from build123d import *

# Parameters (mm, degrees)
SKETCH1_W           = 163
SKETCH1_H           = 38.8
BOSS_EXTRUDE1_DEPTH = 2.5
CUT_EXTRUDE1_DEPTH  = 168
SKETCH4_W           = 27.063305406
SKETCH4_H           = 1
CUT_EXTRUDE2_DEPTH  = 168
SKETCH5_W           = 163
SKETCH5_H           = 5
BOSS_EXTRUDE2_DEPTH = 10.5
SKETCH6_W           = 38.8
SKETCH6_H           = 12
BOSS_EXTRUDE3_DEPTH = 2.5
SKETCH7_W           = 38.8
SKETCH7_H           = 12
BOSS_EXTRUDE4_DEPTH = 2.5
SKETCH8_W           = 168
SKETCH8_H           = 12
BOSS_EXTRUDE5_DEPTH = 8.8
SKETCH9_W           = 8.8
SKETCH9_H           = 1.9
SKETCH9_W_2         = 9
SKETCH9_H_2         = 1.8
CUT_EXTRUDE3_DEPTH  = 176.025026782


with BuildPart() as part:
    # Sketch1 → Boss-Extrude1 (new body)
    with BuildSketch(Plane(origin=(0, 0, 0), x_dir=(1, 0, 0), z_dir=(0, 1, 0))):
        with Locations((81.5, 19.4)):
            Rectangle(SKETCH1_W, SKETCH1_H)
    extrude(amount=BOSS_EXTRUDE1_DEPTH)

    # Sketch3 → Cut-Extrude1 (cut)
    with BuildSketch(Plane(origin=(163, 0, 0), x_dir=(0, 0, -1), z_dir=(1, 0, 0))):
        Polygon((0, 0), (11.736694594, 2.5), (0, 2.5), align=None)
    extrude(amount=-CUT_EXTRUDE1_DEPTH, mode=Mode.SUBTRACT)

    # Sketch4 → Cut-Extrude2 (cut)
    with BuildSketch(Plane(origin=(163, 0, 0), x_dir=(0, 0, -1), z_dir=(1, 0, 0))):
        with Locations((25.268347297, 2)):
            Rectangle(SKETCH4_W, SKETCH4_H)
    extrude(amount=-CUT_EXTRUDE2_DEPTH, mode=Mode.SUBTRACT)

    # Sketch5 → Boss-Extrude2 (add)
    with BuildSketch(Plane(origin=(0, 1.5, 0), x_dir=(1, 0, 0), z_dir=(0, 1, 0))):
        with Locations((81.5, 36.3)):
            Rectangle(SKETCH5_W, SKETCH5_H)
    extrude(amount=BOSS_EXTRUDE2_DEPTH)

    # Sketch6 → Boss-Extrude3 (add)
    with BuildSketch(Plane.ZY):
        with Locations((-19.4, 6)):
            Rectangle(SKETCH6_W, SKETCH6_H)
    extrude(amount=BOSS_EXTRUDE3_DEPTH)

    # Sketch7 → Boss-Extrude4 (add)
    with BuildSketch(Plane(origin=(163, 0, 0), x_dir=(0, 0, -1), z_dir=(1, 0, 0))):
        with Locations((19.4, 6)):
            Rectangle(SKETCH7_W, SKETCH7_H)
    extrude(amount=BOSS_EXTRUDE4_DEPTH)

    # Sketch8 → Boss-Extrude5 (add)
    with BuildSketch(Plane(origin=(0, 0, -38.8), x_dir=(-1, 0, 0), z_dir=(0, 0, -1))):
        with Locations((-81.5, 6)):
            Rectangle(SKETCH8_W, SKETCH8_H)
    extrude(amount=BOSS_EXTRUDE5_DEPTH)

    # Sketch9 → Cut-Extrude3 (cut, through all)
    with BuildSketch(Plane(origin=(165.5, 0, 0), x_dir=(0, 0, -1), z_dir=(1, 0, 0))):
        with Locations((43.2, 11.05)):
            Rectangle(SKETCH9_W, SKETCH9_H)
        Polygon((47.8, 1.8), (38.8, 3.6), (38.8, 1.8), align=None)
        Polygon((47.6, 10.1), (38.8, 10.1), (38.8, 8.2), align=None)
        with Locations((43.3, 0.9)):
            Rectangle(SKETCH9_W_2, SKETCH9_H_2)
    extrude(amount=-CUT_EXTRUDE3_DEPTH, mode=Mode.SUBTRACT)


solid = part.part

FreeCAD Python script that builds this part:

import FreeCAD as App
import Part
import Sketcher
from FreeCAD import Vector
Q = App.Units.Quantity


def add_polygon(sketch, points):
    """Adds a closed chain of lines whose ends are joined by coincident constraints."""
    first, n = sketch.GeometryCount, len(points)
    for a, b in zip(points, points[1:] + points[:1]):
        sketch.addGeometry(Part.LineSegment(App.Vector(*a, 0), App.Vector(*b, 0)), False)
    for i in range(n):
        sketch.addConstraint(Sketcher.Constraint("Coincident", first + i, 2, first + (i + 1) % n, 1))

doc = App.newDocument("Part")
params = doc.addObject("Spreadsheet::Sheet", "Params")
for row, (alias, value) in enumerate([
    ("sketch1_width", "163 mm"),
    ("sketch1_height", "38.8 mm"),
    ("pad1_length", "2.5 mm"),
    ("sketch2_length", "12 mm"),
    ("sketch2_width", "2.5 mm"),
    ("pocket1_length", "168 mm"),
    ("sketch3_width", "1 mm"),
    ("pocket2_length", "168 mm"),
    ("sketch4_width", "163 mm"),
    ("sketch4_height", "5 mm"),
    ("pad2_length", "10.5 mm"),
    ("sketch5_width", "12 mm"),
    ("sketch5_height", "38.8 mm"),
    ("pad3_length", "2.5 mm"),
    ("sketch6_width", "12 mm"),
    ("sketch6_height", "38.8 mm"),
    ("pad4_length", "2.5 mm"),
    ("sketch7_width", "168 mm"),
    ("sketch7_height", "12 mm"),
    ("pad5_length", "8.8 mm"),
    ("sketch8_height", "9 mm"),
    ("sketch8_width", "3.8 mm"),
    ("sketch8_width2", "1.9 mm"),
    ("sketch8_width3", "3.6 mm"),
    ("sketch8_width4", "1.8 mm"),
], start=1):
    params.set(f"A{row}", alias)
    params.set(f"B{row}", "=" + value)
    params.setAlias(f"B{row}", alias)

body = doc.addObject("PartDesign::Body", "Body")

sketch1 = doc.addObject("Sketcher::SketchObject", "Sketch")
body.addObject(sketch1)
sketch1.AttachmentSupport = (doc.XZ_Plane, [""])
sketch1.MapMode = "FlatFace"
add_polygon(sketch1, [(0, -39), (0, 0), (163, 0), (163, -39)])
sketch1.addConstraint(Sketcher.Constraint("Vertical", 0))
sketch1.addConstraint(Sketcher.Constraint("Horizontal", 1))
sketch1.addConstraint(Sketcher.Constraint("Vertical", 2))
sketch1.addConstraint(Sketcher.Constraint("Horizontal", 3))
sketch1.addConstraint(Sketcher.Constraint("Coincident", 0, 2, -1, 1))
sketch1.addConstraint(Sketcher.Constraint("DistanceX", 1, 1, 1, 2, Q("163 mm")))
sketch1.addConstraint(Sketcher.Constraint("DistanceY", 0, 1, 0, 2, Q("38.8 mm")))
sketch1.setExpression("Constraints[9]", "Params.sketch1_width")
sketch1.setExpression("Constraints[10]", "Params.sketch1_height")
pad1 = doc.addObject("PartDesign::Pad", "Pad")
body.addObject(pad1)
pad1.Profile = sketch1
pad1.setExpression("Length", "Params.pad1_length")
pad1.Reversed = True

sketch2 = doc.addObject("Sketcher::SketchObject", "Sketch001")
body.addObject(sketch2)
sketch2.AttachmentSupport = (doc.YZ_Plane, [""])
sketch2.MapMode = "FlatFace"
sketch2.AttachmentOffset = App.Placement(Vector(0, 0, 163), App.Rotation())
add_polygon(sketch2, [(0, 0), (2.5, -11.7), (2.5, 0)])
sketch2.addConstraint(Sketcher.Constraint("Vertical", 1))
sketch2.addConstraint(Sketcher.Constraint("Horizontal", 2))
sketch2.addConstraint(Sketcher.Constraint("Coincident", 2, 2, -1, 1))
sketch2.addConstraint(Sketcher.Constraint("Distance", 0, Q("12 mm")))
sketch2.addConstraint(Sketcher.Constraint("DistanceX", 2, 2, 2, 1, Q("2.5 mm")))
sketch2.setExpression("Constraints[6]", "Params.sketch2_length")
sketch2.setExpression("Constraints[7]", "Params.sketch2_width")
pocket1 = doc.addObject("PartDesign::Pocket", "Pocket")
body.addObject(pocket1)
pocket1.Profile = sketch2
pocket1.setExpression("Length", "Params.pocket1_length")

sketch3 = doc.addObject("Sketcher::SketchObject", "Sketch002")
body.addObject(sketch3)
sketch3.AttachmentSupport = (doc.YZ_Plane, [""])
sketch3.MapMode = "FlatFace"
sketch3.AttachmentOffset = App.Placement(Vector(0, 0, 163), App.Rotation())
add_polygon(sketch3, [(2.5, -11.7), (1.5, -11.7), (1.5, -38.8), (2.5, -38.8)])
sketch3.addConstraint(Sketcher.Constraint("Horizontal", 0))
sketch3.addConstraint(Sketcher.Constraint("Vertical", 1))
sketch3.addConstraint(Sketcher.Constraint("Horizontal", 2))
sketch3.addConstraint(Sketcher.Constraint("Vertical", 3))
sketch3.addConstraint(Sketcher.Constraint("DistanceX", 0, 2, 0, 1, Q("1 mm")))
sketch3.addConstraint(Sketcher.Constraint("DistanceX", -1, 1, 0, 2, Q("1.5 mm")))
sketch3.addConstraint(Sketcher.Constraint("DistanceY", 1, 2, -1, 1, Q("38.8 mm")))
sketch3.addConstraint(Sketcher.Constraint("DistanceY", 1, 2, 1, 1, Q("27.063305 mm")))
sketch3.setExpression("Constraints[8]", "Params.sketch3_width")
pocket2 = doc.addObject("PartDesign::Pocket", "Pocket001")
body.addObject(pocket2)
pocket2.Profile = sketch3
pocket2.setExpression("Length", "Params.pocket2_length")

sketch4 = doc.addObject("Sketcher::SketchObject", "Sketch003")
body.addObject(sketch4)
sketch4.AttachmentSupport = (doc.XZ_Plane, [""])
sketch4.MapMode = "FlatFace"
sketch4.AttachmentOffset = App.Placement(Vector(0, 0, -1.5), App.Rotation())
add_polygon(sketch4, [(0, -39), (0, -34), (163, -34), (163, -39)])
sketch4.addConstraint(Sketcher.Constraint("Vertical", 0))
sketch4.addConstraint(Sketcher.Constraint("Horizontal", 1))
sketch4.addConstraint(Sketcher.Constraint("Vertical", 2))
sketch4.addConstraint(Sketcher.Constraint("Horizontal", 3))
sketch4.addConstraint(Sketcher.Constraint("PointOnObject", 0, 2, -2))
sketch4.addConstraint(Sketcher.Constraint("DistanceX", 1, 1, 1, 2, Q("163 mm")))
sketch4.addConstraint(Sketcher.Constraint("DistanceY", 0, 1, 0, 2, Q("5 mm")))
sketch4.addConstraint(Sketcher.Constraint("DistanceY", 0, 2, -1, 1, Q("33.8 mm")))
sketch4.setExpression("Constraints[9]", "Params.sketch4_width")
sketch4.setExpression("Constraints[10]", "Params.sketch4_height")
pad2 = doc.addObject("PartDesign::Pad", "Pad001")
body.addObject(pad2)
pad2.Profile = sketch4
pad2.setExpression("Length", "Params.pad2_length")
pad2.Reversed = True

sketch5 = doc.addObject("Sketcher::SketchObject", "Sketch004")
body.addObject(sketch5)
sketch5.AttachmentSupport = (doc.YZ_Plane, [""])
sketch5.MapMode = "FlatFace"
add_polygon(sketch5, [(12, -39), (0, -39), (0, 0), (12, 0)])
sketch5.addConstraint(Sketcher.Constraint("Horizontal", 0))
sketch5.addConstraint(Sketcher.Constraint("Vertical", 1))
sketch5.addConstraint(Sketcher.Constraint("Horizontal", 2))
sketch5.addConstraint(Sketcher.Constraint("Vertical", 3))
sketch5.addConstraint(Sketcher.Constraint("Coincident", 1, 2, -1, 1))
sketch5.addConstraint(Sketcher.Constraint("DistanceX", 0, 2, 0, 1, Q("12 mm")))
sketch5.addConstraint(Sketcher.Constraint("DistanceY", 1, 1, 1, 2, Q("38.8 mm")))
sketch5.setExpression("Constraints[9]", "Params.sketch5_width")
sketch5.setExpression("Constraints[10]", "Params.sketch5_height")
pad3 = doc.addObject("PartDesign::Pad", "Pad002")
body.addObject(pad3)
pad3.Profile = sketch5
pad3.setExpression("Length", "Params.pad3_length")
pad3.Reversed = True

sketch6 = doc.addObject("Sketcher::SketchObject", "Sketch005")
body.addObject(sketch6)
sketch6.AttachmentSupport = (doc.YZ_Plane, [""])
sketch6.MapMode = "FlatFace"
sketch6.AttachmentOffset = App.Placement(Vector(0, 0, 163), App.Rotation())
add_polygon(sketch6, [(12, 0), (0, 0), (0, -39), (12, -39)])
sketch6.addConstraint(Sketcher.Constraint("Horizontal", 0))
sketch6.addConstraint(Sketcher.Constraint("Vertical", 1))
sketch6.addConstraint(Sketcher.Constraint("Horizontal", 2))
sketch6.addConstraint(Sketcher.Constraint("Vertical", 3))
sketch6.addConstraint(Sketcher.Constraint("Coincident", 0, 2, -1, 1))
sketch6.addConstraint(Sketcher.Constraint("DistanceX", 0, 2, 0, 1, Q("12 mm")))
sketch6.addConstraint(Sketcher.Constraint("DistanceY", 1, 2, 1, 1, Q("38.8 mm")))
sketch6.setExpression("Constraints[9]", "Params.sketch6_width")
sketch6.setExpression("Constraints[10]", "Params.sketch6_height")
pad4 = doc.addObject("PartDesign::Pad", "Pad003")
body.addObject(pad4)
pad4.Profile = sketch6
pad4.setExpression("Length", "Params.pad4_length")

sketch7 = doc.addObject("Sketcher::SketchObject", "Sketch006")
body.addObject(sketch7)
sketch7.AttachmentSupport = (doc.XY_Plane, [""])
sketch7.MapMode = "FlatFace"
sketch7.AttachmentOffset = App.Placement(Vector(0, 0, -38.8), App.Rotation())
add_polygon(sketch7, [(166, 12), (166, 0), (-2, 0), (-2, 12)])
sketch7.addConstraint(Sketcher.Constraint("Vertical", 0))
sketch7.addConstraint(Sketcher.Constraint("Horizontal", 1))
sketch7.addConstraint(Sketcher.Constraint("Vertical", 2))
sketch7.addConstraint(Sketcher.Constraint("Horizontal", 3))
sketch7.addConstraint(Sketcher.Constraint("PointOnObject", 0, 2, -1))
sketch7.addConstraint(Sketcher.Constraint("DistanceX", 1, 2, 1, 1, Q("168 mm")))
sketch7.addConstraint(Sketcher.Constraint("DistanceY", 0, 2, 0, 1, Q("12 mm")))
sketch7.addConstraint(Sketcher.Constraint("DistanceX", -1, 1, 0, 2, Q("165.5 mm")))
sketch7.setExpression("Constraints[9]", "Params.sketch7_width")
sketch7.setExpression("Constraints[10]", "Params.sketch7_height")
pad5 = doc.addObject("PartDesign::Pad", "Pad004")
body.addObject(pad5)
pad5.Profile = sketch7
pad5.setExpression("Length", "Params.pad5_length")
pad5.Reversed = True

sketch8 = doc.addObject("Sketcher::SketchObject", "Sketch007")
body.addObject(sketch8)
sketch8.AttachmentSupport = (doc.YZ_Plane, [""])
sketch8.MapMode = "FlatFace"
sketch8.AttachmentOffset = App.Placement(Vector(0, 0, 165.5), App.Rotation())
add_polygon(sketch8, [(12, -38.8), (8.2, -38.8), (10.1, -47.6), (12, -47.6)])
add_polygon(sketch8, [(1.8, -47.8), (3.6, -38.8), (0, -38.8), (0, -47.8)])
sketch8.addConstraint(Sketcher.Constraint("Horizontal", 0))
sketch8.addConstraint(Sketcher.Constraint("Horizontal", 2))
sketch8.addConstraint(Sketcher.Constraint("Vertical", 3))
sketch8.addConstraint(Sketcher.Constraint("Horizontal", 5))
sketch8.addConstraint(Sketcher.Constraint("Vertical", 6))
sketch8.addConstraint(Sketcher.Constraint("Horizontal", 7))
sketch8.addConstraint(Sketcher.Constraint("PointOnObject", 5, 2, -2))
sketch8.addConstraint(Sketcher.Constraint("Horizontal", 3, 2, 4, 2))
sketch8.addConstraint(Sketcher.Constraint("DistanceY", 6, 2, 6, 1, Q("9 mm")))
sketch8.addConstraint(Sketcher.Constraint("DistanceX", 0, 2, 0, 1, Q("3.8 mm")))
sketch8.addConstraint(Sketcher.Constraint("DistanceX", 2, 1, 2, 2, Q("1.9 mm")))
sketch8.addConstraint(Sketcher.Constraint("DistanceX", 5, 2, 5, 1, Q("3.6 mm")))
sketch8.addConstraint(Sketcher.Constraint("DistanceX", 7, 1, 7, 2, Q("1.8 mm")))
sketch8.addConstraint(Sketcher.Constraint("DistanceY", 3, 1, 3, 2, Q("8.8 mm")))
sketch8.addConstraint(Sketcher.Constraint("DistanceX", -1, 1, 2, 2, Q("12 mm")))
sketch8.addConstraint(Sketcher.Constraint("DistanceY", 0, 2, -1, 1, Q("38.8 mm")))
sketch8.setExpression("Constraints[16]", "Params.sketch8_height")
sketch8.setExpression("Constraints[17]", "Params.sketch8_width")
sketch8.setExpression("Constraints[18]", "Params.sketch8_width2")
sketch8.setExpression("Constraints[19]", "Params.sketch8_width3")
sketch8.setExpression("Constraints[20]", "Params.sketch8_width4")
pocket3 = doc.addObject("PartDesign::Pocket", "Pocket002")
body.addObject(pocket3)
pocket3.Profile = sketch8
pocket3.Type = "ThroughAll"

doc.recompute()
